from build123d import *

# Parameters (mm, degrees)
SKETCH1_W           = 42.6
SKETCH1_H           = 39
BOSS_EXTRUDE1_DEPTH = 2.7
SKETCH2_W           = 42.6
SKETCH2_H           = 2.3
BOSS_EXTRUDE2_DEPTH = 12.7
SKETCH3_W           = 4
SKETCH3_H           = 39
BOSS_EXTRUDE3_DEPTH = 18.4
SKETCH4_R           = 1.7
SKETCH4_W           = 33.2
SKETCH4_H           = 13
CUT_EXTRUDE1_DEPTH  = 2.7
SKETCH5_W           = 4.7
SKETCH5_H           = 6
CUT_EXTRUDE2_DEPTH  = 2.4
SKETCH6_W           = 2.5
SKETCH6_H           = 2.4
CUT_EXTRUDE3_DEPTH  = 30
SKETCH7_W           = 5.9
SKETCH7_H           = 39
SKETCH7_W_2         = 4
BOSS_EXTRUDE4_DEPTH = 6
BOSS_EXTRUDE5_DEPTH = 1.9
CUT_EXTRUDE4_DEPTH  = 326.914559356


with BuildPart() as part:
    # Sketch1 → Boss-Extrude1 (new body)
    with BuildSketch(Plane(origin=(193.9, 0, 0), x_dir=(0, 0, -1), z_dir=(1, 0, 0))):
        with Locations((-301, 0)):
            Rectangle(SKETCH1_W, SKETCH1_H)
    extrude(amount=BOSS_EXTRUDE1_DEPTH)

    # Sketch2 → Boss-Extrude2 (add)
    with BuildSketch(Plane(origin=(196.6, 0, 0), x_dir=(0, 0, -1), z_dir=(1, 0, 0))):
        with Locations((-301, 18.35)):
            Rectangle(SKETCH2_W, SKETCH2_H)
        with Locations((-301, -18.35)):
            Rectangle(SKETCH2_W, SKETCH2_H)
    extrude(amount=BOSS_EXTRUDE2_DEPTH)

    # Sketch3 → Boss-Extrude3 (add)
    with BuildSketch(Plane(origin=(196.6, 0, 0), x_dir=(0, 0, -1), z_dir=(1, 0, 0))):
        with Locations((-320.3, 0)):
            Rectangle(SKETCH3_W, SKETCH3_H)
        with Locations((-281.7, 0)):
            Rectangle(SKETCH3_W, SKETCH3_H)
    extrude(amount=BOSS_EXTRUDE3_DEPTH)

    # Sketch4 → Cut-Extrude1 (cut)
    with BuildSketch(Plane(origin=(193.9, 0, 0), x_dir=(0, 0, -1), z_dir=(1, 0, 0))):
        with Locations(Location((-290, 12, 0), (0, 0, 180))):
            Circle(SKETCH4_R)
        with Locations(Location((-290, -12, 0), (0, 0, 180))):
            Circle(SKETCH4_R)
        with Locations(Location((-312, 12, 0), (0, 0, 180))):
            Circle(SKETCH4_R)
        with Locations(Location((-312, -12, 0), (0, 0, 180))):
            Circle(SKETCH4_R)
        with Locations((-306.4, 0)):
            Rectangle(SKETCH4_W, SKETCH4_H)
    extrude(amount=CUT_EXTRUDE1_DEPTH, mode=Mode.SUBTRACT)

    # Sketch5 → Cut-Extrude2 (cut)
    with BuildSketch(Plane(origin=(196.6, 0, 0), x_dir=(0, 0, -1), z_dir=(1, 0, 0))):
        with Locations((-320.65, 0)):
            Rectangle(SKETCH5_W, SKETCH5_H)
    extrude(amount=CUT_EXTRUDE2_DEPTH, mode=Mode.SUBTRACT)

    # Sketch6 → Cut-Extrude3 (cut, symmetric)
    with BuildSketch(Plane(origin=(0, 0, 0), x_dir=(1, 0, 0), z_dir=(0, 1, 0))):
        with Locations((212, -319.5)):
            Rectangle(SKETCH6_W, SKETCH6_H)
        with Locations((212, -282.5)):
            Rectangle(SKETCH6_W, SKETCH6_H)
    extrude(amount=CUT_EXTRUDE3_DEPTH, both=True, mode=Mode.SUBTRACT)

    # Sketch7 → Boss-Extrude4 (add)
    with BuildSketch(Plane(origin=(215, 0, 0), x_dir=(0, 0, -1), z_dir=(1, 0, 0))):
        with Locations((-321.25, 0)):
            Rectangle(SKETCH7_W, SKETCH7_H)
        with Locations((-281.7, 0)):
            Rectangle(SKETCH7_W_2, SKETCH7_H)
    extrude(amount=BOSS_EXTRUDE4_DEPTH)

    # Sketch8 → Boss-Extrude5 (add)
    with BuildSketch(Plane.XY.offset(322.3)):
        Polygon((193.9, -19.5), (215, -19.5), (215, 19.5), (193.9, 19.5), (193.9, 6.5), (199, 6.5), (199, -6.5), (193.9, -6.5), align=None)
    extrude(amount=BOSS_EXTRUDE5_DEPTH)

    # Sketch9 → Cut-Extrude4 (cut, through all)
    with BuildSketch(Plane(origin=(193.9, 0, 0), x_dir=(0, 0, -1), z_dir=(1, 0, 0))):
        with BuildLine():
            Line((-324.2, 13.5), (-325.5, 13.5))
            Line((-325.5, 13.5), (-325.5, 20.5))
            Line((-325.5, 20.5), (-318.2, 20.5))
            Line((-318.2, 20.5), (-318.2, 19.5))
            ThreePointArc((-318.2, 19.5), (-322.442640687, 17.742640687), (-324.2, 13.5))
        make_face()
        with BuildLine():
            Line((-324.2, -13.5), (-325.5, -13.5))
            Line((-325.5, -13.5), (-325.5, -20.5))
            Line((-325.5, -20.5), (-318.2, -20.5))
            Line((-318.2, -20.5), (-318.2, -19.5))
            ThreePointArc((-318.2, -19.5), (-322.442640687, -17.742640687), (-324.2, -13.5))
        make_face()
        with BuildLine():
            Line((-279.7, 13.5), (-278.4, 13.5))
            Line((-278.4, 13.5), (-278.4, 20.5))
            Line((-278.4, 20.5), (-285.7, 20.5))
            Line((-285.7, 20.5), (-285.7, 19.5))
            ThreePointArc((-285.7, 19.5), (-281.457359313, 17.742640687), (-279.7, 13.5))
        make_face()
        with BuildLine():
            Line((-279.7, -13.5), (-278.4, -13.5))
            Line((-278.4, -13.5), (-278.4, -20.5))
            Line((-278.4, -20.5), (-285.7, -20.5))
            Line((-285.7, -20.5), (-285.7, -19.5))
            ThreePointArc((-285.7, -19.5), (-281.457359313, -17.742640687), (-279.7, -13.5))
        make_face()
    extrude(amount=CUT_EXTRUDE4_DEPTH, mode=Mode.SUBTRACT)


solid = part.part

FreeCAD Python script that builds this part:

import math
import FreeCAD as App
import Part
import Sketcher

doc = App.newDocument("Part")
body = doc.addObject("PartDesign::Body", "Body")

# Sketch on YZ plane
sketch1 = body.newObject("Sketcher::SketchObject", "Sketch")
sketch1.AttachmentSupport = (doc.getObject("YZ_Plane"), [""])
sketch1.MapMode = "FlatFace"
sketch1.AttachmentOffset = App.Placement(App.Vector(0, 0, 193.9), App.Rotation())
sketch1.addGeometry([
    Part.LineSegment(App.Vector(20, 322, 0), App.Vector(-20, 322, 0)),
    Part.LineSegment(App.Vector(-20, 322, 0), App.Vector(-20, 280, 0)),
    Part.LineSegment(App.Vector(-20, 280, 0), App.Vector(20, 280, 0)),
    Part.LineSegment(App.Vector(20, 280, 0), App.Vector(20, 322, 0)),
], False)
sketch1.addConstraint([
    Sketcher.Constraint("Coincident", 0, 2, 1, 1),
    Sketcher.Constraint("Coincident", 1, 2, 2, 1),
    Sketcher.Constraint("Coincident", 2, 2, 3, 1),
    Sketcher.Constraint("Coincident", 3, 2, 0, 1),
    Sketcher.Constraint("Horizontal", 0),
    Sketcher.Constraint("Vertical", 1),
    Sketcher.Constraint("Horizontal", 2),
    Sketcher.Constraint("Vertical", 3),
    Sketcher.Constraint("DistanceX", 0, 2, 0, 1, 39.0),
    Sketcher.Constraint("DistanceY", 1, 2, 1, 1, 42.6),
    Sketcher.Constraint("DistanceX", 0, 2, -1, 1, 19.5),
    Sketcher.Constraint("DistanceY", -1, 1, 0, 2, 322.3),
])
pad1 = body.newObject("PartDesign::Pad", "Pad")
pad1.Profile = sketch1
pad1.Length = 2.7

# Sketch on YZ plane
sketch2 = body.newObject("Sketcher::SketchObject", "Sketch001")
sketch2.AttachmentSupport = (doc.getObject("YZ_Plane"), [""])
sketch2.MapMode = "FlatFace"
sketch2.AttachmentOffset = App.Placement(App.Vector(0, 0, 196.6), App.Rotation())
sketch2.addGeometry([
    Part.LineSegment(App.Vector(19.5, 322.3, 0), App.Vector(17.2, 322.3, 0)),  # 0
    Part.LineSegment(App.Vector(17.2, 322.3, 0), App.Vector(17.2, 279.7, 0)),  # 1
    Part.LineSegment(App.Vector(17.2, 279.7, 0), App.Vector(19.5, 279.7, 0)),  # 2
    Part.LineSegment(App.Vector(19.5, 279.7, 0), App.Vector(19.5, 322.3, 0)),  # 3
    Part.LineSegment(App.Vector(-17.2, 322.3, 0), App.Vector(-19.5, 322.3, 0)),  # 4
    Part.LineSegment(App.Vector(-19.5, 322.3, 0), App.Vector(-19.5, 279.7, 0)),  # 5
    Part.LineSegment(App.Vector(-19.5, 279.7, 0), App.Vector(-17.2, 279.7, 0)),  # 6
    Part.LineSegment(App.Vector(-17.2, 279.7, 0), App.Vector(-17.2, 322.3, 0)),  # 7
], False)
sketch2.addConstraint([
    Sketcher.Constraint("Coincident", 0, 2, 1, 1),
    Sketcher.Constraint("Coincident", 1, 2, 2, 1),
    Sketcher.Constraint("Coincident", 2, 2, 3, 1),
    Sketcher.Constraint("Coincident", 3, 2, 0, 1),
    Sketcher.Constraint("Coincident", 4, 2, 5, 1),
    Sketcher.Constraint("Coincident", 5, 2, 6, 1),
    Sketcher.Constraint("Coincident", 6, 2, 7, 1),
    Sketcher.Constraint("Coincident", 7, 2, 4, 1),
    Sketcher.Constraint("Horizontal", 0),
    Sketcher.Constraint("Vertical", 1),
    Sketcher.Constraint("Horizontal", 2),
    Sketcher.Constraint("Vertical", 3),
    Sketcher.Constraint("Horizontal", 4),
    Sketcher.Constraint("Vertical", 5),
    Sketcher.Constraint("Horizontal", 6),
    Sketcher.Constraint("Vertical", 7),
    Sketcher.Constraint("Symmetric", 3, 2, 4, 2, -2),
    Sketcher.Constraint("Symmetric", 1, 2, 6, 2, -2),
    Sketcher.Constraint("DistanceX", 0, 2, 0, 1, 2.3),
    Sketcher.Constraint("DistanceY", 1, 2, 1, 1, 42.6),
    Sketcher.Constraint("DistanceX", 4, 2, 3, 2, 39.0),
    Sketcher.Constraint("DistanceY", -1, 1, 0, 2, 322.3),
])
pad2 = body.newObject("PartDesign::Pad", "Pad001")
pad2.Profile = sketch2
pad2.Length = 12.7

# Sketch on YZ plane
sketch3 = body.newObject("Sketcher::SketchObject", "Sketch002")
sketch3.AttachmentSupport = (doc.getObject("YZ_Plane"), [""])
sketch3.MapMode = "FlatFace"
sketch3.AttachmentOffset = App.Placement(App.Vector(0, 0, 196.6), App.Rotation())
sketch3.addGeometry([
    Part.LineSegment(App.Vector(19.5, 322.3, 0), App.Vector(-19.5, 322.3, 0)),  # 0
    Part.LineSegment(App.Vector(-19.5, 322.3, 0), App.Vector(-19.5, 318.3, 0)),  # 1
    Part.LineSegment(App.Vector(-19.5, 318.3, 0), App.Vector(19.5, 318.3, 0)),  # 2
    Part.LineSegment(App.Vector(19.5, 318.3, 0), App.Vector(19.5, 322.3, 0)),  # 3
    Part.LineSegment(App.Vector(19.5, 283.7, 0), App.Vector(-19.5, 283.7, 0)),  # 4
    Part.LineSegment(App.Vector(-19.5, 283.7, 0), App.Vector(-19.5, 279.7, 0)),  # 5
    Part.LineSegment(App.Vector(-19.5, 279.7, 0), App.Vector(19.5, 279.7, 0)),  # 6
    Part.LineSegment(App.Vector(19.5, 279.7, 0), App.Vector(19.5, 283.7, 0)),  # 7
], False)
sketch3.addConstraint([
    Sketcher.Constraint("Coincident", 0, 2, 1, 1),
    Sketcher.Constraint("Coincident", 1, 2, 2, 1),
    Sketcher.Constraint("Coincident", 2, 2, 3, 1),
    Sketcher.Constraint("Coincident", 3, 2, 0, 1),
    Sketcher.Constraint("Coincident", 4, 2, 5, 1),
    Sketcher.Constraint("Coincident", 5, 2, 6, 1),
    Sketcher.Constraint("Coincident", 6, 2, 7, 1),
    Sketcher.Constraint("Coincident", 7, 2, 4, 1),
    Sketcher.Constraint("Horizontal", 0),
    Sketcher.Constraint("Vertical", 1),
    Sketcher.Constraint("Horizontal", 2),
    Sketcher.Constraint("Vertical", 3),
    Sketcher.Constraint("Horizontal", 4),
    Sketcher.Constraint("Vertical", 5),
    Sketcher.Constraint("Horizontal", 6),
    Sketcher.Constraint("Vertical", 7),
    Sketcher.Constraint("Vertical", 1, 2, 4, 2),
    Sketcher.Constraint("Vertical", 3, 2, 6, 2),
    Sketcher.Constraint("Equal", 3, 5),
    Sketcher.Constraint("DistanceX", 0, 2, 0, 1, 39.0),
    Sketcher.Constraint("DistanceY", 1, 2, 1, 1, 4.0),
    Sketcher.Constraint("DistanceX", 0, 2, -1, 1, 19.5),
    Sketcher.Constraint("DistanceY", -1, 1, 0, 2, 322.3),
    Sketcher.Constraint("DistanceY", -1, 1, 4, 2, 283.7),
])
pad3 = body.newObject("PartDesign::Pad", "Pad002")
pad3.Profile = sketch3
pad3.Length = 18.4

# Sketch on YZ plane
sketch4 = body.newObject("Sketcher::SketchObject", "Sketch003")
sketch4.AttachmentSupport = (doc.getObject("YZ_Plane"), [""])
sketch4.MapMode = "FlatFace"
sketch4.AttachmentOffset = App.Placement(App.Vector(0, 0, 193.9), App.Rotation())
sketch4.addGeometry([
    Part.Circle(App.Vector(12, 290, 0), App.Vector(0, 0, 1), 1.7),  # 0
    Part.Circle(App.Vector(-12, 290, 0), App.Vector(0, 0, 1), 1.7),  # 1
    Part.Circle(App.Vector(12, 312, 0), App.Vector(0, 0, 1), 1.7),  # 2
    Part.Circle(App.Vector(-12, 312, 0), App.Vector(0, 0, 1), 1.7),  # 3
    Part.LineSegment(App.Vector(6.5, 323, 0), App.Vector(-6.5, 323, 0)),  # 4
    Part.LineSegment(App.Vector(-6.5, 323, 0), App.Vector(-6.5, 289.8, 0)),  # 5
    Part.LineSegment(App.Vector(-6.5, 289.8, 0), App.Vector(6.5, 289.8, 0)),  # 6
    Part.LineSegment(App.Vector(6.5, 289.8, 0), App.Vector(6.5, 323, 0)),  # 7
], False)
sketch4.addConstraint([
    Sketcher.Constraint("Coincident", 4, 2, 5, 1),
    Sketcher.Constraint("Coincident", 5, 2, 6, 1),
    Sketcher.Constraint("Coincident", 6, 2, 7, 1),
    Sketcher.Constraint("Coincident", 7, 2, 4, 1),
    Sketcher.Constraint("Horizontal", 4),
    Sketcher.Constraint("Vertical", 5),
    Sketcher.Constraint("Horizontal", 6),
    Sketcher.Constraint("Vertical", 7),
    Sketcher.Constraint("Equal", 0, 1),
    Sketcher.Constraint("Equal", 1, 2),
    Sketcher.Constraint("Equal", 2, 3),
    Sketcher.Constraint("Symmetric", 0, 3, 1, 3, -2),
    Sketcher.Constraint("Symmetric", 2, 3, 3, 3, -2),
    Sketcher.Constraint("Vertical", 0, 3, 2, 3),
    Sketcher.Constraint("Diameter", 0, 3.4),
    Sketcher.Constraint("DistanceX", 4, 2, 4, 1, 13.0),
    Sketcher.Constraint("DistanceY", 5, 2, 5, 1, 33.2),
    Sketcher.Constraint("DistanceX", -1, 1, 0, 3, 12.0),
    Sketcher.Constraint("DistanceY", -1, 1, 0, 3, 290.0),
    Sketcher.Constraint("DistanceY", -1, 1, 2, 3, 312.0),
    Sketcher.Constraint("DistanceY", -1, 1, 4, 2, 323.0),
    Sketcher.Constraint("DistanceX", 4, 2, -1, 1, 6.5),
])
pocket1 = body.newObject("PartDesign::Pocket", "Pocket")
pocket1.Profile = sketch4
pocket1.Length = 2.7
pocket1.Reversed = True

# Sketch on YZ plane
sketch5 = body.newObject("Sketcher::SketchObject", "Sketch004")
sketch5.AttachmentSupport = (doc.getObject("YZ_Plane"), [""])
sketch5.MapMode = "FlatFace"
sketch5.AttachmentOffset = App.Placement(App.Vector(0, 0, 196.6), App.Rotation())
sketch5.addGeometry([
    Part.LineSegment(App.Vector(3, 323, 0), App.Vector(-3, 323, 0)),
    Part.LineSegment(App.Vector(-3, 323, 0), App.Vector(-3, 318.3, 0)),
    Part.LineSegment(App.Vector(-3, 318.3, 0), App.Vector(3, 318.3, 0)),
    Part.LineSegment(App.Vector(3, 318.3, 0), App.Vector(3, 323, 0)),
], False)
sketch5.addConstraint([
    Sketcher.Constraint("Coincident", 0, 2, 1, 1),
    Sketcher.Constraint("Coincident", 1, 2, 2, 1),
    Sketcher.Constraint("Coincident", 2, 2, 3, 1),
    Sketcher.Constraint("Coincident", 3, 2, 0, 1),
    Sketcher.Constraint("Horizontal", 0),
    Sketcher.Constraint("Vertical", 1),
    Sketcher.Constraint("Horizontal", 2),
    Sketcher.Constraint("Vertical", 3),
    Sketcher.Constraint("DistanceX", 0, 2, 0, 1, 6.0),
    Sketcher.Constraint("DistanceY", 1, 2, 1, 1, 4.7),
    Sketcher.Constraint("DistanceX", 0, 2, -1, 1, 3.0),
    Sketcher.Constraint("DistanceY", -1, 1, 0, 2, 323.0),
])
pocket2 = body.newObject("PartDesign::Pocket", "Pocket001")
pocket2.Profile = sketch5
pocket2.Length = 2.4
pocket2.Reversed = True

# Sketch on XZ plane
sketch6 = body.newObject("Sketcher::SketchObject", "Sketch005")
sketch6.AttachmentSupport = (doc.getObject("XZ_Plane"), [""])
sketch6.MapMode = "FlatFace"
sketch6.addGeometry([
    Part.LineSegment(App.Vector(210.8, 318.3, 0), App.Vector(210.8, 320.7, 0)),  # 0
    Part.LineSegment(App.Vector(210.8, 320.7, 0), App.Vector(213.2, 320.7, 0)),  # 1
    Part.LineSegment(App.Vector(213.2, 320.7, 0), App.Vector(213.2, 318.3, 0)),  # 2
    Part.LineSegment(App.Vector(213.2, 318.3, 0), App.Vector(210.8, 318.3, 0)),  # 3
    Part.LineSegment(App.Vector(210.8, 281.3, 0), App.Vector(210.8, 283.7, 0)),  # 4
    Part.LineSegment(App.Vector(210.8, 283.7, 0), App.Vector(213.2, 283.7, 0)),  # 5
    Part.LineSegment(App.Vector(213.2, 283.7, 0), App.Vector(213.2, 281.3, 0)),  # 6
    Part.LineSegment(App.Vector(213.2, 281.3, 0), App.Vector(210.8, 281.3, 0)),  # 7
], False)
sketch6.addConstraint([
    Sketcher.Constraint("Coincident", 0, 2, 1, 1),
    Sketcher.Constraint("Coincident", 1, 2, 2, 1),
    Sketcher.Constraint("Coincident", 2, 2, 3, 1),
    Sketcher.Constraint("Coincident", 3, 2, 0, 1),
    Sketcher.Constraint("Coincident", 4, 2, 5, 1),
    Sketcher.Constraint("Coincident", 5, 2, 6, 1),
    Sketcher.Constraint("Coincident", 6, 2, 7, 1),
    Sketcher.Constraint("Coincident", 7, 2, 4, 1),
    Sketcher.Constraint("Vertical", 0),
    Sketcher.Constraint("Horizontal", 1),
    Sketcher.Constraint("Vertical", 2),
    Sketcher.Constraint("Horizontal", 3),
    Sketcher.Constraint("Vertical", 4),
    Sketcher.Constraint("Horizontal", 5),
    Sketcher.Constraint("Vertical", 6),
    Sketcher.Constraint("Horizontal", 7),
    Sketcher.Constraint("Vertical", 3, 2, 4, 2),
    Sketcher.Constraint("Vertical", 2, 2, 5, 2),
    Sketcher.Constraint("Equal", 2, 4),
    Sketcher.Constraint("DistanceX", 1, 1, 1, 2, 2.5),
    Sketcher.Constraint("DistanceY", 0, 1, 0, 2, 2.4),
    Sketcher.Constraint("DistanceY", 4, 2, 0, 2, 37.0),
    Sketcher.Constraint("DistanceY", -1, 1, 0, 2, 320.7),
    Sketcher.Constraint("DistanceX", -1, 1, 0, 2, 210.75),
])
pocket3 = body.newObject("PartDesign::Pocket", "Pocket002")
pocket3.Profile = sketch6
pocket3.Length = 60
pocket3.Midplane = True

# Sketch on YZ plane
sketch7 = body.newObject("Sketcher::SketchObject", "Sketch006")
sketch7.AttachmentSupport = (doc.getObject("YZ_Plane"), [""])
sketch7.MapMode = "FlatFace"
sketch7.AttachmentOffset = App.Placement(App.Vector(0, 0, 215), App.Rotation())
sketch7.addGeometry([
    Part.LineSegment(App.Vector(19.5, 324.2, 0), App.Vector(-19.5, 324.2, 0)),  # 0
    Part.LineSegment(App.Vector(-19.5, 324.2, 0), App.Vector(-19.5, 318.3, 0)),  # 1
    Part.LineSegment(App.Vector(-19.5, 318.3, 0), App.Vector(19.5, 318.3, 0)),  # 2
    Part.LineSegment(App.Vector(19.5, 318.3, 0), App.Vector(19.5, 324.2, 0)),  # 3
    Part.LineSegment(App.Vector(19.5, 283.7, 0), App.Vector(-19.5, 283.7, 0)),  # 4
    Part.LineSegment(App.Vector(-19.5, 283.7, 0), App.Vector(-19.5, 279.7, 0)),  # 5
    Part.LineSegment(App.Vector(-19.5, 279.7, 0), App.Vector(19.5, 279.7, 0)),  # 6
    Part.LineSegment(App.Vector(19.5, 279.7, 0), App.Vector(19.5, 283.7, 0)),  # 7
], False)
sketch7.addConstraint([
    Sketcher.Constraint("Coincident", 0, 2, 1, 1),
    Sketcher.Constraint("Coincident", 1, 2, 2, 1),
    Sketcher.Constraint("Coincident", 2, 2, 3, 1),
    Sketcher.Constraint("Coincident", 3, 2, 0, 1),
    Sketcher.Constraint("Coincident", 4, 2, 5, 1),
    Sketcher.Constraint("Coincident", 5, 2, 6, 1),
    Sketcher.Constraint("Coincident", 6, 2, 7, 1),
    Sketcher.Constraint("Coincident", 7, 2, 4, 1),
    Sketcher.Constraint("Horizontal", 0),
    Sketcher.Constraint("Vertical", 1),
    Sketcher.Constraint("Horizontal", 2),
    Sketcher.Constraint("Vertical", 3),
    Sketcher.Constraint("Horizontal", 4),
    Sketcher.Constraint("Vertical", 5),
    Sketcher.Constraint("Horizontal", 6),
    Sketcher.Constraint("Vertical", 7),
    Sketcher.Constraint("Vertical", 1, 2, 4, 2),
    Sketcher.Constraint("Vertical", 3, 2, 6, 2),
    Sketcher.Constraint("DistanceX", 0, 2, 0, 1, 39.0),
    Sketcher.Constraint("DistanceY", 5, 2, 5, 1, 4.0),
    Sketcher.Constraint("DistanceY", 1, 2, 1, 1, 5.9),
    Sketcher.Constraint("DistanceX", 0, 2, -1, 1, 19.5),
    Sketcher.Constraint("DistanceY", -1, 1, 0, 2, 324.2),
    Sketcher.Constraint("DistanceY", -1, 1, 4, 2, 283.7),
])
pad4 = body.newObject("PartDesign::Pad", "Pad003")
pad4.Profile = sketch7
pad4.Length = 6

# Sketch on XY plane
sketch8 = body.newObject("Sketcher::SketchObject", "Sketch007")
sketch8.AttachmentSupport = (doc.getObject("XY_Plane"), [""])
sketch8.MapMode = "FlatFace"
sketch8.AttachmentOffset = App.Placement(App.Vector(0, 0, 322.3), App.Rotation())
sketch8.addGeometry([
    Part.LineSegment(App.Vector(194, -20, 0), App.Vector(215, -20, 0)),  # 0
    Part.LineSegment(App.Vector(215, -20, 0), App.Vector(215, 20, 0)),  # 1
    Part.LineSegment(App.Vector(215, 20, 0), App.Vector(194, 20, 0)),  # 2
    Part.LineSegment(App.Vector(194, 20, 0), App.Vector(194, 6, 0)),  # 3
    Part.LineSegment(App.Vector(194, 6, 0), App.Vector(199, 6, 0)),  # 4
    Part.LineSegment(App.Vector(199, 6, 0), App.Vector(199, -6, 0)),  # 5
    Part.LineSegment(App.Vector(199, -6, 0), App.Vector(194, -6, 0)),  # 6
    Part.LineSegment(App.Vector(194, -6, 0), App.Vector(194, -20, 0)),  # 7
], False)
sketch8.addConstraint([
    Sketcher.Constraint("Coincident", 0, 2, 1, 1),
    Sketcher.Constraint("Coincident", 1, 2, 2, 1),
    Sketcher.Constraint("Coincident", 2, 2, 3, 1),
    Sketcher.Constraint("Coincident", 3, 2, 4, 1),
    Sketcher.Constraint("Coincident", 4, 2, 5, 1),
    Sketcher.Constraint("Coincident", 5, 2, 6, 1),
    Sketcher.Constraint("Coincident", 6, 2, 7, 1),
    Sketcher.Constraint("Coincident", 7, 2, 0, 1),
    Sketcher.Constraint("Horizontal", 0),
    Sketcher.Constraint("Vertical", 1),
    Sketcher.Constraint("Horizontal", 2),
    Sketcher.Constraint("Vertical", 3),
    Sketcher.Constraint("Horizontal", 4),
    Sketcher.Constraint("Vertical", 5),
    Sketcher.Constraint("Horizontal", 6),
    Sketcher.Constraint("Vertical", 7),
    Sketcher.Constraint("Symmetric", 3, 2, 6, 2, -1),
    Sketcher.Constraint("Equal", 3, 5),
    Sketcher.Constraint("Equal", 5, 7),
    Sketcher.Constraint("DistanceY", 1, 1, 1, 2, 39.0),
    Sketcher.Constraint("DistanceX", 0, 1, 0, 2, 21.1),
    Sketcher.Constraint("DistanceX", 4, 1, 4, 2, 5.1),
    Sketcher.Constraint("DistanceX", -1, 1, 0, 2, 215.0),
])
pad5 = body.newObject("PartDesign::Pad", "Pad004")
pad5.Profile = sketch8
pad5.Length = 1.9

# Sketch on YZ plane
sketch9 = body.newObject("Sketcher::SketchObject", "Sketch008")
sketch9.AttachmentSupport = (doc.getObject("YZ_Plane"), [""])
sketch9.MapMode = "FlatFace"
sketch9.AttachmentOffset = App.Placement(App.Vector(0, 0, 193.9), App.Rotation())
sketch9.addGeometry([
    Part.LineSegment(App.Vector(13.5, 325.5, 0), App.Vector(13.5, 324.2, 0)),  # 0
    Part.ArcOfCircle(Part.Circle(App.Vector(13.5, 318.2, 0), App.Vector(0, 0, 1), 6), math.radians(0), math.radians(90)),  # 1
    Part.LineSegment(App.Vector(19.5, 318.2, 0), App.Vector(20.5, 318.2, 0)),  # 2
    Part.LineSegment(App.Vector(20.5, 318.2, 0), App.Vector(20.5, 325.5, 0)),  # 3
    Part.LineSegment(App.Vector(20.5, 325.5, 0), App.Vector(13.5, 325.5, 0)),  # 4
    Part.LineSegment(App.Vector(-13.5, 324.2, 0), App.Vector(-13.5, 325.5, 0)),  # 5
    Part.LineSegment(App.Vector(-13.5, 325.5, 0), App.Vector(-20.5, 325.5, 0)),  # 6
    Part.LineSegment(App.Vector(-20.5, 325.5, 0), App.Vector(-20.5, 318.2, 0)),  # 7
    Part.LineSegment(App.Vector(-20.5, 318.2, 0), App.Vector(-19.5, 318.2, 0)),  # 8
    Part.ArcOfCircle(Part.Circle(App.Vector(-13.5, 318.2, 0), App.Vector(0, 0, 1), 6), math.radians(90), math.radians(180)),  # 9
    Part.LineSegment(App.Vector(13.5, 279.7, 0), App.Vector(13.5, 278.4, 0)),  # 10
    Part.LineSegment(App.Vector(13.5, 278.4, 0), App.Vector(20.5, 278.4, 0)),  # 11
    Part.LineSegment(App.Vector(20.5, 278.4, 0), App.Vector(20.5, 285.7, 0)),  # 12
    Part.LineSegment(App.Vector(20.5, 285.7, 0), App.Vector(19.5, 285.7, 0)),  # 13
    Part.ArcOfCircle(Part.Circle(App.Vector(13.5, 285.7, 0), App.Vector(0, 0, 1), 6), math.radians(-90), math.radians(0)),  # 14
    Part.LineSegment(App.Vector(-13.5, 278.4, 0), App.Vector(-13.5, 279.7, 0)),  # 15
    Part.ArcOfCircle(Part.Circle(App.Vector(-13.5, 285.7, 0), App.Vector(0, 0, 1), 6), math.radians(180), math.radians(270)),  # 16
    Part.LineSegment(App.Vector(-19.5, 285.7, 0), App.Vector(-20.5, 285.7, 0)),  # 17
    Part.LineSegment(App.Vector(-20.5, 285.7, 0), App.Vector(-20.5, 278.4, 0)),  # 18
    Part.LineSegment(App.Vector(-20.5, 278.4, 0), App.Vector(-13.5, 278.4, 0)),  # 19
], False)
sketch9.addConstraint([
    Sketcher.Constraint("Coincident", 0, 2, 1, 2),
    Sketcher.Constraint("Coincident", 1, 1, 2, 1),
    Sketcher.Constraint("Coincident", 2, 2, 3, 1),
    Sketcher.Constraint("Coincident", 3, 2, 4, 1),
    Sketcher.Constraint("Coincident", 4, 2, 0, 1),
    Sketcher.Constraint("Coincident", 5, 2, 6, 1),
    Sketcher.Constraint("Coincident", 6, 2, 7, 1),
    Sketcher.Constraint("Coincident", 7, 2, 8, 1),
    Sketcher.Constraint("Coincident", 8, 2, 9, 2),
    Sketcher.Constraint("Coincident", 9, 1, 5, 1),
    Sketcher.Constraint("Coincident", 10, 2, 11, 1),
    Sketcher.Constraint("Coincident", 11, 2, 12, 1),
    Sketcher.Constraint("Coincident", 12, 2, 13, 1),
    Sketcher.Constraint("Coincident", 13, 2, 14, 2),
    Sketcher.Constraint("Coincident", 14, 1, 10, 1),
    Sketcher.Constraint("Coincident", 15, 2, 16, 2),
    Sketcher.Constraint("Coincident", 16, 1, 17, 1),
    Sketcher.Constraint("Coincident", 17, 2, 18, 1),
    Sketcher.Constraint("Coincident", 18, 2, 19, 1),
    Sketcher.Constraint("Coincident", 19, 2, 15, 1),
    Sketcher.Constraint("Vertical", 0),
    Sketcher.Constraint("Horizontal", 2),
    Sketcher.Constraint("Vertical", 3),
    Sketcher.Constraint("Horizontal", 4),
    Sketcher.Constraint("Vertical", 5),
    Sketcher.Constraint("Horizontal", 6),
    Sketcher.Constraint("Vertical", 7),
    Sketcher.Constraint("Horizontal", 8),
    Sketcher.Constraint("Vertical", 10),
    Sketcher.Constraint("Horizontal", 11),
    Sketcher.Constraint("Vertical", 12),
    Sketcher.Constraint("Horizontal", 13),
    Sketcher.Constraint("Vertical", 15),
    Sketcher.Constraint("Horizontal", 17),
    Sketcher.Constraint("Vertical", 18),
    Sketcher.Constraint("Horizontal", 19),
    Sketcher.Constraint("Equal", 1, 9),
    Sketcher.Constraint("Equal", 9, 14),
    Sketcher.Constraint("Equal", 14, 16),
    Sketcher.Constraint("Symmetric", 1, 3, 9, 3, -2),
    Sketcher.Constraint("Symmetric", 14, 3, 16, 3, -2),
    Sketcher.Constraint("Symmetric", 4, 2, 5, 2, -2),
    Sketcher.Constraint("Symmetric", 2, 2, 7, 2, -2),
    Sketcher.Constraint("Symmetric", 12, 2, 17, 2, -2),
    Sketcher.Constraint("Symmetric", 10, 2, 19, 2, -2),
    Sketcher.Constraint("Horizontal", 9, 3, 1, 1),
    Sketcher.Constraint("Horizontal", 16, 3, 12, 2),
    Sketcher.Constraint("Vertical", 1, 3, 14, 3),
    Sketcher.Constraint("Vertical", 14, 3, 0, 2),
    Sketcher.Constraint("Vertical", 4, 2, 10, 2),
    Sketcher.Constraint("Vertical", 3, 2, 11, 2),
    Sketcher.Constraint("Equal", 5, 10),
    Sketcher.Constraint("Radius", 1, 6.0),
    Sketcher.Constraint("DistanceX", 2, 1, 2, 2, 1.0),
    Sketcher.Constraint("DistanceY", 0, 2, 0, 1, 1.3),
    Sketcher.Constraint("DistanceX", 9, 3, 1, 3, 27.0),
    Sketcher.Constraint("DistanceY", -1, 1, 1, 3, 318.2),
    Sketcher.Constraint("DistanceY", -1, 1, 14, 3, 285.7),
])
pocket4 = body.newObject("PartDesign::Pocket", "Pocket003")
pocket4.Profile = sketch9
pocket4.Type = "ThroughAll"
pocket4.Reversed = True

doc.recompute()
